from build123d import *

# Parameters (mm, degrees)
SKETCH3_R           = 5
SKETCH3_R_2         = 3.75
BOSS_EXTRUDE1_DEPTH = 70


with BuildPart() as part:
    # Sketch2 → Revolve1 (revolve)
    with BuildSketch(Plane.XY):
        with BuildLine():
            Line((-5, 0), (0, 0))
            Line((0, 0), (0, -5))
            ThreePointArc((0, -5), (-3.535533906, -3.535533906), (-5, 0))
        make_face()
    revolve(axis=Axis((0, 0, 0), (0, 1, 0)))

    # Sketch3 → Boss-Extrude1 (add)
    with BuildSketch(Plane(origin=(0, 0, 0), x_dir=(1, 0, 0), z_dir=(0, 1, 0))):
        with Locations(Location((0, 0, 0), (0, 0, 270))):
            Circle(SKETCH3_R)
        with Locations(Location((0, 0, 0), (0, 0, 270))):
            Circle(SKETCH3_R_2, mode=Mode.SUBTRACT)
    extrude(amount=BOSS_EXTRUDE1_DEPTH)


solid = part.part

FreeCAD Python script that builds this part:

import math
import FreeCAD as App
import Part
import Sketcher

doc = App.newDocument("Part")
body = doc.addObject("PartDesign::Body", "Body")

sketch1 = doc.addObject("Sketcher::SketchObject", "Sketch")
body.addObject(sketch1)
sketch1.AttachmentSupport = (doc.XY_Plane, [""])
sketch1.MapMode = "FlatFace"
sketch1.addGeometry([
    Part.LineSegment(App.Vector(0, 0, 0), App.Vector(-5, 0, 0)),
    Part.ArcOfCircle(Part.Circle(App.Vector(0, 0, 0), App.Vector(0, 0, 1), 5), math.radians(180), math.radians(270)),
    Part.LineSegment(App.Vector(0, -5, 0), App.Vector(0, 0, 0)),
], False)
sketch1.addConstraint([
    Sketcher.Constraint("Coincident", 0, 2, 1, 1),
    Sketcher.Constraint("Coincident", 1, 2, 2, 1),
    Sketcher.Constraint("Coincident", 2, 2, 0, 1),
    Sketcher.Constraint("Horizontal", 0),
    Sketcher.Constraint("Vertical", 2),
    Sketcher.Constraint("Coincident", 1, 3, -1, 1),
    Sketcher.Constraint("Coincident", 2, 2, -1, 1),
    Sketcher.Constraint("Radius", 1, 5.0),
])
revolution = doc.addObject("PartDesign::Revolution", "Revolution")
body.addObject(revolution)
revolution.Profile = sketch1
revolution.ReferenceAxis = (sketch1, ["V_Axis"])
revolution.Angle = 360

sketch2 = doc.addObject("Sketcher::SketchObject", "Sketch001")
body.addObject(sketch2)
sketch2.AttachmentSupport = (doc.XZ_Plane, [""])
sketch2.MapMode = "FlatFace"
sketch2.addGeometry([
    Part.Circle(App.Vector(0, 0, 0), App.Vector(0, 0, 1), 5),
    Part.Circle(App.Vector(0, 0, 0), App.Vector(0, 0, 1), 3.75),
], False)
sketch2.addConstraint([
    Sketcher.Constraint("Coincident", 0, 3, -1, 1),
    Sketcher.Constraint("Coincident", 1, 3, -1, 1),
    Sketcher.Constraint("Diameter", 0, 10.0),
    Sketcher.Constraint("Diameter", 1, 7.5),
])
pad1 = doc.addObject("PartDesign::Pad", "Pad")
body.addObject(pad1)
pad1.Profile = sketch2
pad1.Length = 70
pad1.Reversed = True

doc.recompute()
